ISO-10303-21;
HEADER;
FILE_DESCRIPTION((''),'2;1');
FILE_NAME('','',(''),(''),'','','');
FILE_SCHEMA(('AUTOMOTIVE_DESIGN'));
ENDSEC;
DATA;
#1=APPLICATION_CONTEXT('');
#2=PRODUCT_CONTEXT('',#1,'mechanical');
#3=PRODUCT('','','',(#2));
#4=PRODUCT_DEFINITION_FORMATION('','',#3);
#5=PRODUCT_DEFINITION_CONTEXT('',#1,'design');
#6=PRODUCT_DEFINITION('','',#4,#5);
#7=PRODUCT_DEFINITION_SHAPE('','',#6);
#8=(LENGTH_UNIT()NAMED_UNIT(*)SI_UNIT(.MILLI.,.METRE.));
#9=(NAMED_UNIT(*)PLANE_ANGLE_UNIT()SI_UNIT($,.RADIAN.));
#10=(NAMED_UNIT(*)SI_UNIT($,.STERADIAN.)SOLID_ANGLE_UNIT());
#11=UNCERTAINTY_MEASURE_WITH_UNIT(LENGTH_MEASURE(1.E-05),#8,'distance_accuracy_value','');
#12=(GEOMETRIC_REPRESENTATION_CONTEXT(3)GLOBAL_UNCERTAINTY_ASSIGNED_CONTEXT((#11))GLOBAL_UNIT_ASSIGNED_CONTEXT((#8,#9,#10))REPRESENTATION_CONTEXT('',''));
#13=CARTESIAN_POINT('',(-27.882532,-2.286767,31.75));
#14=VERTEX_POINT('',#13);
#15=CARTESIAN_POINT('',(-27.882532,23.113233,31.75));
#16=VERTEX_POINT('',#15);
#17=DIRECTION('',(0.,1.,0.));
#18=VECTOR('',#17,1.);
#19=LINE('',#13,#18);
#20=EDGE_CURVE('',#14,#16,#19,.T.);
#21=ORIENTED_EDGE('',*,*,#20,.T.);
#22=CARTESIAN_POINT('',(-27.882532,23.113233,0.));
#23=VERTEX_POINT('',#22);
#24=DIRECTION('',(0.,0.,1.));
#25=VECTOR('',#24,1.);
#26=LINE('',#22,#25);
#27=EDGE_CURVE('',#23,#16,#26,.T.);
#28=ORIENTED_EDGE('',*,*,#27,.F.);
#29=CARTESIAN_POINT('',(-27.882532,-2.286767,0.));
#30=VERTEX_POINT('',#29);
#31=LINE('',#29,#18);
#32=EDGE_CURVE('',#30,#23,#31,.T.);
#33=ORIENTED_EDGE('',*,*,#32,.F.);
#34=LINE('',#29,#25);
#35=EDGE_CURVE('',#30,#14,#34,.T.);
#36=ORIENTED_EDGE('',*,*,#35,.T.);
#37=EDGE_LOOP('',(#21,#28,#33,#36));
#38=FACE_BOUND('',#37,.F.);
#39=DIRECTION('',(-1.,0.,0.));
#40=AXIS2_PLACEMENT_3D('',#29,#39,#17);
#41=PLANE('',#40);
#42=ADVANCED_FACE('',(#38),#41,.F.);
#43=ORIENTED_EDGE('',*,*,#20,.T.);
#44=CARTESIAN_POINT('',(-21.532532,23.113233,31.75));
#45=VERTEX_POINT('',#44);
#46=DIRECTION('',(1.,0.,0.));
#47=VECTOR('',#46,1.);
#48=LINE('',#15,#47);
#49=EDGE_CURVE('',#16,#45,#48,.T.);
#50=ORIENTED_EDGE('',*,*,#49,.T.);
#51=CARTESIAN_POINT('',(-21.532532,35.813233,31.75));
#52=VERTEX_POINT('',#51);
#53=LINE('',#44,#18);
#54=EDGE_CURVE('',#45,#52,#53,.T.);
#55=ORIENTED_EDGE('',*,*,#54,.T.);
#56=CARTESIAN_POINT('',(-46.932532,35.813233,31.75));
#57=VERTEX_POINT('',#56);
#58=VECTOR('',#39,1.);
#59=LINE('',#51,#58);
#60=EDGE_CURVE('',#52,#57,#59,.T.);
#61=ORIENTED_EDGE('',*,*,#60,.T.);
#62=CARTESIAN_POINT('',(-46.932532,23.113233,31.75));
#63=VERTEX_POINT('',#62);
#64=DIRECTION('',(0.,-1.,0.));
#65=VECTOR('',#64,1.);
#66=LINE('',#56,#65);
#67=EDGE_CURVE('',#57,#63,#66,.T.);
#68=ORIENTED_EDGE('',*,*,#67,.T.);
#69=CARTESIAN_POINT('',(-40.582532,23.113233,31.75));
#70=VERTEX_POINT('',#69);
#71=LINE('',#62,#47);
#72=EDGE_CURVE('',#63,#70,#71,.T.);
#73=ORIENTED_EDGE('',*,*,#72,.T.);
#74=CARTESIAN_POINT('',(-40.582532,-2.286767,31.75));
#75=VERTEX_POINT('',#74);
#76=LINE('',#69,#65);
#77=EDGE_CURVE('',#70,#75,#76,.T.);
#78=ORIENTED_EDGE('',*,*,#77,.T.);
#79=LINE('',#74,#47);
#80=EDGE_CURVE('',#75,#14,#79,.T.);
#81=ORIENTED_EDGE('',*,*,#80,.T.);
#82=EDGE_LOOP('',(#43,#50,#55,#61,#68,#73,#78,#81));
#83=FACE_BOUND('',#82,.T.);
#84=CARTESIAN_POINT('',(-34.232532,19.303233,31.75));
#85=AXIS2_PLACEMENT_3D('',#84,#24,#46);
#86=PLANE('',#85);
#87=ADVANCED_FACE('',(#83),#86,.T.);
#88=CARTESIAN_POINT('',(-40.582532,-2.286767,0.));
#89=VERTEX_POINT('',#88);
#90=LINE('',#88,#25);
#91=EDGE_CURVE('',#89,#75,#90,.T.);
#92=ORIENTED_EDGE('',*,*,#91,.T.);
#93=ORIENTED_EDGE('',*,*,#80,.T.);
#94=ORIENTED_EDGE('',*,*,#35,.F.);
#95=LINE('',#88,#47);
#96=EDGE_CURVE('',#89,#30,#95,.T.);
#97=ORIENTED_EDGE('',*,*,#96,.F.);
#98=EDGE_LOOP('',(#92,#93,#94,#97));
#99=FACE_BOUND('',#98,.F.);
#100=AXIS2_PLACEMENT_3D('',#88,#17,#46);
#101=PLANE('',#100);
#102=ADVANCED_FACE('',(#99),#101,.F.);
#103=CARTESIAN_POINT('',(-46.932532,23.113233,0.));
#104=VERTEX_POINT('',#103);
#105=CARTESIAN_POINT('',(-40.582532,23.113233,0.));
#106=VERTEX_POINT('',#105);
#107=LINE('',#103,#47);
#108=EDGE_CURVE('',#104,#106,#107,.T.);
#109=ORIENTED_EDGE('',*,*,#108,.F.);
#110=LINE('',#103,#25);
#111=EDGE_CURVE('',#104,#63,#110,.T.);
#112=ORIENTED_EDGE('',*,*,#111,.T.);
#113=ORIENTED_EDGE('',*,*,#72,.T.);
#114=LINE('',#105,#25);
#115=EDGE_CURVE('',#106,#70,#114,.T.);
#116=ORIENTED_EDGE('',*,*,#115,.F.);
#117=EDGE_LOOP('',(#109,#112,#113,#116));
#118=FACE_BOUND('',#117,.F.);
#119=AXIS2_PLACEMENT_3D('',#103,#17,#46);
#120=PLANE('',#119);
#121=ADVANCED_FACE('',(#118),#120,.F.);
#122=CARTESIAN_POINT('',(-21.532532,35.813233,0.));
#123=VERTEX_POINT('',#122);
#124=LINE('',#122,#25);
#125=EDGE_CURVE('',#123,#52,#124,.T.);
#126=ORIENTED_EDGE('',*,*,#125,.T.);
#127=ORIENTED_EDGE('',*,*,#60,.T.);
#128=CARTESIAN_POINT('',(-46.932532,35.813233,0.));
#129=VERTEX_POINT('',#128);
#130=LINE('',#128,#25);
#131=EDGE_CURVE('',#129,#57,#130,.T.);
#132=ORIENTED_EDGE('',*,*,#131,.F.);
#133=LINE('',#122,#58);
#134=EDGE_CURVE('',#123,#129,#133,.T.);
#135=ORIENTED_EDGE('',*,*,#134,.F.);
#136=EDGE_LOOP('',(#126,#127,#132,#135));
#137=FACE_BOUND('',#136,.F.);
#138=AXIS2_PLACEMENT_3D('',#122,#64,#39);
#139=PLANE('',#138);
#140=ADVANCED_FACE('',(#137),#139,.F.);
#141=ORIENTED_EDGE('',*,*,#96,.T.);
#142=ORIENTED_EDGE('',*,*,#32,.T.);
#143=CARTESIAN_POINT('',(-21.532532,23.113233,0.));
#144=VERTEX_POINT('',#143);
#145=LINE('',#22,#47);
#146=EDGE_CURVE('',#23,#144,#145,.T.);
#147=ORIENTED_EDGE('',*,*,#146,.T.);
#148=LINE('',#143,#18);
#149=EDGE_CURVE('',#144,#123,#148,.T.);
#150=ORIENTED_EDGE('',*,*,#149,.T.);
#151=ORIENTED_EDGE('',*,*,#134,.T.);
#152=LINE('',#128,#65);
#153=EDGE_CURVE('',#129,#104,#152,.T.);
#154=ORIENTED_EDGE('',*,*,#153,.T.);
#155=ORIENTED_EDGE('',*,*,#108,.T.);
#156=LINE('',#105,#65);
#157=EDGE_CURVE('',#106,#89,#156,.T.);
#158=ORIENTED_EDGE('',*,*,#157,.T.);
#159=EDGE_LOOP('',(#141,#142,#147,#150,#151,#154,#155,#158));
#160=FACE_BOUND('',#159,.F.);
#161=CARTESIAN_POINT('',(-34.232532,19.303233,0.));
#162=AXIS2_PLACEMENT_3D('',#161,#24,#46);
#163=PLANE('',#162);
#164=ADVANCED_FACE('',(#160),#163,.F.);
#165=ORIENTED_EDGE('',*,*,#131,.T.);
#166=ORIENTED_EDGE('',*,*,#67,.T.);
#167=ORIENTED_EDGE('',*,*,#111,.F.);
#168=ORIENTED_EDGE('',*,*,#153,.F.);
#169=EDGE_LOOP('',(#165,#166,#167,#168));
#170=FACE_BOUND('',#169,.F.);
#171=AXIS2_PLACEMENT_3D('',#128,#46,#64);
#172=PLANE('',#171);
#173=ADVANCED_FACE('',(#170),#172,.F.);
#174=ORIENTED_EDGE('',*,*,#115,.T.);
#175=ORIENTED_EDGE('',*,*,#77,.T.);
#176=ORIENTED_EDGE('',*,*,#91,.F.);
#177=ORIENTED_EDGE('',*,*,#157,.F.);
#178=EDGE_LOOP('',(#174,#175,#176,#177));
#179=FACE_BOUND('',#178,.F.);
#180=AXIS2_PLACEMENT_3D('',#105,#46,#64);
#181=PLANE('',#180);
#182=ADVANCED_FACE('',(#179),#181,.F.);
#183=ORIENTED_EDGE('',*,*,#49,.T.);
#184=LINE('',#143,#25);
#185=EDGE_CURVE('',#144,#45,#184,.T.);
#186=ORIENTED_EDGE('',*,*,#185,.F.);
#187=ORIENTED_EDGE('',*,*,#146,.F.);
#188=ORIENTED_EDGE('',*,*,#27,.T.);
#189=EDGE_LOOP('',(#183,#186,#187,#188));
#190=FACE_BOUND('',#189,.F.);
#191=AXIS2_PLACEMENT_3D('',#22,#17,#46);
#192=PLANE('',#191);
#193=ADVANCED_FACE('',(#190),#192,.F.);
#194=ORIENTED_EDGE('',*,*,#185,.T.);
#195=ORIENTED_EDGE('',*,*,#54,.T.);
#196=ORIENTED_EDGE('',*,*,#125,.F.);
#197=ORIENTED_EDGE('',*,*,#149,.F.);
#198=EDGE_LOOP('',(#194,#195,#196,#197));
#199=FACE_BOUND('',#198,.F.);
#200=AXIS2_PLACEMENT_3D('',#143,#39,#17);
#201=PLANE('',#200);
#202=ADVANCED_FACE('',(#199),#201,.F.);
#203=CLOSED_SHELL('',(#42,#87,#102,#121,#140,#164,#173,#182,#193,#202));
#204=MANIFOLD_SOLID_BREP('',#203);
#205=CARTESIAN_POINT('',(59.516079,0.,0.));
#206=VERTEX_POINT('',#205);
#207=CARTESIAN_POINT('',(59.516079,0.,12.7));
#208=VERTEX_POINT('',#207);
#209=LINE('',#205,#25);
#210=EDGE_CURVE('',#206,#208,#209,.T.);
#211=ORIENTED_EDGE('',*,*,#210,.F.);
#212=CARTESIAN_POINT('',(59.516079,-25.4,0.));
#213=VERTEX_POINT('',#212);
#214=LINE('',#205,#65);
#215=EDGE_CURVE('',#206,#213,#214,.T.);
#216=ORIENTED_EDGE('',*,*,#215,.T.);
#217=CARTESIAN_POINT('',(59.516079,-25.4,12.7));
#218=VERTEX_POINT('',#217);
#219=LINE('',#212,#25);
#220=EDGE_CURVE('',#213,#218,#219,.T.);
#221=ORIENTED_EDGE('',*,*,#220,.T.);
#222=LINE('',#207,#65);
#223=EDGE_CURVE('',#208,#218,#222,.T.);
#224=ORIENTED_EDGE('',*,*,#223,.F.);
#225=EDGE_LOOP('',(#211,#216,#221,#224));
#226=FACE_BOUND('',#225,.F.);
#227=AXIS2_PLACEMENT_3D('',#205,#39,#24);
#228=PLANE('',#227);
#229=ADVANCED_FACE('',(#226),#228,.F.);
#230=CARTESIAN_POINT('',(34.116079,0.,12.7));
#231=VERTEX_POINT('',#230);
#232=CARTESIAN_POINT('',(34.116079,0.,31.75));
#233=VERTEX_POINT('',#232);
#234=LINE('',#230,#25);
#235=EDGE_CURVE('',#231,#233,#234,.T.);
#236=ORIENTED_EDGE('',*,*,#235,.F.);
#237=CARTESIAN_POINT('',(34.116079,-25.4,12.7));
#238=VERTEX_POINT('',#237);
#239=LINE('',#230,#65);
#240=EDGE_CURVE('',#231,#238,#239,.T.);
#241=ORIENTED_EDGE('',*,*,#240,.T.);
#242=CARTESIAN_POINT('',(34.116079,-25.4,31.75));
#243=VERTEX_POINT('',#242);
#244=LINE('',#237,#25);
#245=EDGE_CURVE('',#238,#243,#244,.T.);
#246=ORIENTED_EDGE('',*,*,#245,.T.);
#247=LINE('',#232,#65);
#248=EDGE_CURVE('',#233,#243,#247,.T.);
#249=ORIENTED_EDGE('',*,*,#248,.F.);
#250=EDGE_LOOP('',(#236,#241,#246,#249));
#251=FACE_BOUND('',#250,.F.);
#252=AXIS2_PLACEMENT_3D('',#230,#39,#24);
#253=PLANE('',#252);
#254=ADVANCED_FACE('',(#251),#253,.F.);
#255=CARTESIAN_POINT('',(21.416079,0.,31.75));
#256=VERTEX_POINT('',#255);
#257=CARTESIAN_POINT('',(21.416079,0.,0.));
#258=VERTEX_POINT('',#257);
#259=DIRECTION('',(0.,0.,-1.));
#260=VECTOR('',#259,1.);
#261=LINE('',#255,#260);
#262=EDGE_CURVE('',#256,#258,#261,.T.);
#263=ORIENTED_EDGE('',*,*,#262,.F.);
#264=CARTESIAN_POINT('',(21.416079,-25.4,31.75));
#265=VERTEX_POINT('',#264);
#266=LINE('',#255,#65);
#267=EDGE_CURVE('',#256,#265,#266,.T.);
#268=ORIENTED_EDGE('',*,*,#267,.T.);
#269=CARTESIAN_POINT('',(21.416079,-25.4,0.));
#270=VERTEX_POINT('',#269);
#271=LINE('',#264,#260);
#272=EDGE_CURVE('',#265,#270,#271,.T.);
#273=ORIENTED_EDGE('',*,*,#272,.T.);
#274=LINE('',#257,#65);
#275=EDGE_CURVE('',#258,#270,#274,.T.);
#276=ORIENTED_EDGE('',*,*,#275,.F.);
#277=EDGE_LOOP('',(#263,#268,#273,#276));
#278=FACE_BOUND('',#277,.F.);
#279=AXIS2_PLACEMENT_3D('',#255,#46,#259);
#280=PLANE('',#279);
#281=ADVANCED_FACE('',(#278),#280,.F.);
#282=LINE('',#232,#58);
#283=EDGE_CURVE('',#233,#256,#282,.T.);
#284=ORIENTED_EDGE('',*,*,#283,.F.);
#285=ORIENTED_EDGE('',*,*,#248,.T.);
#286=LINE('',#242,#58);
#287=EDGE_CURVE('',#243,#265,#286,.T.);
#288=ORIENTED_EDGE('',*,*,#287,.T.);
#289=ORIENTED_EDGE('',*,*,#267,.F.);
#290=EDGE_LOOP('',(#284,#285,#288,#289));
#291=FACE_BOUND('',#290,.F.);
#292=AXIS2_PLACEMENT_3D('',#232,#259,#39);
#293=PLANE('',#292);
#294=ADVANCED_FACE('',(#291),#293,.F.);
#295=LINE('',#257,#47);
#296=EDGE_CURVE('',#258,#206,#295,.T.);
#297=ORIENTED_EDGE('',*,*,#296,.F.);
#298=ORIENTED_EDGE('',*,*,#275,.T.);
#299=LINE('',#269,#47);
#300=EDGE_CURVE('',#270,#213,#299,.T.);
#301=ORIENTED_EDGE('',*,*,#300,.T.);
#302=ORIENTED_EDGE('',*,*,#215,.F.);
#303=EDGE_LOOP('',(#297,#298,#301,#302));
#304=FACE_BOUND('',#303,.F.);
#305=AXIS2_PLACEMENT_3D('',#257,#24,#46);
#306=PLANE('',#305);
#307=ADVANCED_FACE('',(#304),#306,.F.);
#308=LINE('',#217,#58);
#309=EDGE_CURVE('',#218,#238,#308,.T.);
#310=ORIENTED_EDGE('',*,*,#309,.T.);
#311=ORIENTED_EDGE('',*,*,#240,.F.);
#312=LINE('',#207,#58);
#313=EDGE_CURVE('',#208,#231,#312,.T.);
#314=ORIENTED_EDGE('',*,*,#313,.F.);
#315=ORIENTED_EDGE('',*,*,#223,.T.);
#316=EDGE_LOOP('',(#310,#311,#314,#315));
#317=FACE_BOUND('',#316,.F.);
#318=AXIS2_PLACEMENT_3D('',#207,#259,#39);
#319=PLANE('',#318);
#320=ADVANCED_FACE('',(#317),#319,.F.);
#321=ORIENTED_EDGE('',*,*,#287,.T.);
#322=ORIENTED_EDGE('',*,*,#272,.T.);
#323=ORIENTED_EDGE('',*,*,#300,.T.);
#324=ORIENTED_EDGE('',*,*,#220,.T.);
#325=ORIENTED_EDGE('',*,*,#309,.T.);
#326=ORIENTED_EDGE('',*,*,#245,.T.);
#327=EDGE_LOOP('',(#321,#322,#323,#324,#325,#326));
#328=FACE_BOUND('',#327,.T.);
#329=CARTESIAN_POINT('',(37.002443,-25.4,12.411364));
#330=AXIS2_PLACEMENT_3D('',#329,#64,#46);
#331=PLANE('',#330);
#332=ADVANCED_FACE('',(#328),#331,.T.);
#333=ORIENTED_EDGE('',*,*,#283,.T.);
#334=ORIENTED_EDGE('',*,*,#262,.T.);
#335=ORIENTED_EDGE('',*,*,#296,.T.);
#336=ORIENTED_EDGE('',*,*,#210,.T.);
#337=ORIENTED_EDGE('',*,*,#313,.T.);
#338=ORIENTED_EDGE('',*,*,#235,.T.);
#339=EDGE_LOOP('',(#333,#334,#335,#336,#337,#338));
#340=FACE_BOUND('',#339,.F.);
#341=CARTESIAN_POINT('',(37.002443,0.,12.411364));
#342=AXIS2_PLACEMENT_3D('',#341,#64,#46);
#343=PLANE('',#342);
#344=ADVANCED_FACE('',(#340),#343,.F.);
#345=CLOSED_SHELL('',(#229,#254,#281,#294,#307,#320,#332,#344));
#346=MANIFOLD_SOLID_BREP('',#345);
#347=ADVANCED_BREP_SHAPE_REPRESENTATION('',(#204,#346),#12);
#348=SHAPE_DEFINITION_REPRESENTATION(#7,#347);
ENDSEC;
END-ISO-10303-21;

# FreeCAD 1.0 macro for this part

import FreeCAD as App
import Part
import Sketcher
Q = App.Units.Quantity


def add_polygon(sketch, points):
    """Adds a closed chain of lines whose ends are joined by coincident constraints."""
    first, n = sketch.GeometryCount, len(points)
    for a, b in zip(points, points[1:] + points[:1]):
        sketch.addGeometry(Part.LineSegment(App.Vector(*a, 0), App.Vector(*b, 0)), False)
    for i in range(n):
        sketch.addConstraint(Sketcher.Constraint("Coincident", first + i, 2, first + (i + 1) % n, 1))

doc = App.newDocument("Part")
body = doc.addObject("PartDesign::Body", "Body")

# Sketch on XZ plane
sketch1 = doc.addObject("Sketcher::SketchObject", "Sketch")
body.addObject(sketch1)
sketch1.AttachmentSupport = (doc.XZ_Plane, [""])
sketch1.MapMode = "FlatFace"
add_polygon(sketch1, [(34.116079, 31.75), (21.416079, 31.75), (21.416079, 0), (59.516079, 0), (59.516079, 12.7), (34.116079, 12.7)])  # lines 0-5
sketch1.addConstraint(Sketcher.Constraint("Horizontal", 0))
sketch1.addConstraint(Sketcher.Constraint("Vertical", 1))
sketch1.addConstraint(Sketcher.Constraint("Horizontal", 2))
sketch1.addConstraint(Sketcher.Constraint("Vertical", 3))
sketch1.addConstraint(Sketcher.Constraint("Horizontal", 4))
sketch1.addConstraint(Sketcher.Constraint("Vertical", 5))
sketch1.addConstraint(Sketcher.Constraint("PointOnObject", 1, 2, -1))
sketch1.addConstraint(Sketcher.Constraint("Equal", 0, 3))
sketch1.addConstraint(Sketcher.Constraint("DistanceX", 4, 2, 4, 1, Q("1 in")))
sketch1.addConstraint(Sketcher.Constraint("DistanceX", 0, 2, 0, 1, Q("0.5 in")))
sketch1.addConstraint(Sketcher.Constraint("DistanceY", 1, 2, 1, 1, Q("1.25 in")))
sketch1.addConstraint(Sketcher.Constraint("DistanceX", -1, 1, 0, 2, 21.416079))
pad1 = doc.addObject("PartDesign::Pad", "Pad")
body.addObject(pad1)
pad1.Profile = sketch1
pad1.Length = Q("1 in")
body2 = doc.addObject("PartDesign::Body", "Body001")

# Sketch on XY plane
sketch2 = doc.addObject("Sketcher::SketchObject", "Sketch001")
body2.addObject(sketch2)
sketch2.AttachmentSupport = (doc.getObject("XY_Plane001"), [""])
sketch2.MapMode = "FlatFace"
add_polygon(sketch2, [(-21.532532, 35.813233), (-46.932532, 35.813233), (-46.932532, 23.113233), (-40.582532, 23.113233), (-40.582532, -2.286767), (-27.882532, -2.286767), (-27.882532, 23.113233), (-21.532532, 23.113233)])  # lines 0-7
sketch2.addConstraint(Sketcher.Constraint("Horizontal", 0))
sketch2.addConstraint(Sketcher.Constraint("Vertical", 1))
sketch2.addConstraint(Sketcher.Constraint("Horizontal", 2))
sketch2.addConstraint(Sketcher.Constraint("Vertical", 3))
sketch2.addConstraint(Sketcher.Constraint("Horizontal", 4))
sketch2.addConstraint(Sketcher.Constraint("Vertical", 5))
sketch2.addConstraint(Sketcher.Constraint("Horizontal", 6))
sketch2.addConstraint(Sketcher.Constraint("Vertical", 7))
sketch2.addConstraint(Sketcher.Constraint("Horizontal", 2, 2, 5, 2))
sketch2.addConstraint(Sketcher.Constraint("Equal", 2, 6))
sketch2.addConstraint(Sketcher.Constraint("Equal", 4, 1))
sketch2.addConstraint(Sketcher.Constraint("Equal", 0, 3))
sketch2.addConstraint(Sketcher.Constraint("DistanceX", 0, 2, 0, 1, Q("1 in")))
sketch2.addConstraint(Sketcher.Constraint("DistanceX", 4, 1, 4, 2, Q("0.5 in")))
sketch2.addConstraint(Sketcher.Constraint("DistanceX", 6, 2, -1, 1, 21.532532))
sketch2.addConstraint(Sketcher.Constraint("DistanceY", -1, 1, 0, 2, 35.813233))
pad2 = doc.addObject("PartDesign::Pad", "Pad001")
body2.addObject(pad2)
pad2.Profile = sketch2
pad2.Length = Q("1.25 in")

doc.recompute()
